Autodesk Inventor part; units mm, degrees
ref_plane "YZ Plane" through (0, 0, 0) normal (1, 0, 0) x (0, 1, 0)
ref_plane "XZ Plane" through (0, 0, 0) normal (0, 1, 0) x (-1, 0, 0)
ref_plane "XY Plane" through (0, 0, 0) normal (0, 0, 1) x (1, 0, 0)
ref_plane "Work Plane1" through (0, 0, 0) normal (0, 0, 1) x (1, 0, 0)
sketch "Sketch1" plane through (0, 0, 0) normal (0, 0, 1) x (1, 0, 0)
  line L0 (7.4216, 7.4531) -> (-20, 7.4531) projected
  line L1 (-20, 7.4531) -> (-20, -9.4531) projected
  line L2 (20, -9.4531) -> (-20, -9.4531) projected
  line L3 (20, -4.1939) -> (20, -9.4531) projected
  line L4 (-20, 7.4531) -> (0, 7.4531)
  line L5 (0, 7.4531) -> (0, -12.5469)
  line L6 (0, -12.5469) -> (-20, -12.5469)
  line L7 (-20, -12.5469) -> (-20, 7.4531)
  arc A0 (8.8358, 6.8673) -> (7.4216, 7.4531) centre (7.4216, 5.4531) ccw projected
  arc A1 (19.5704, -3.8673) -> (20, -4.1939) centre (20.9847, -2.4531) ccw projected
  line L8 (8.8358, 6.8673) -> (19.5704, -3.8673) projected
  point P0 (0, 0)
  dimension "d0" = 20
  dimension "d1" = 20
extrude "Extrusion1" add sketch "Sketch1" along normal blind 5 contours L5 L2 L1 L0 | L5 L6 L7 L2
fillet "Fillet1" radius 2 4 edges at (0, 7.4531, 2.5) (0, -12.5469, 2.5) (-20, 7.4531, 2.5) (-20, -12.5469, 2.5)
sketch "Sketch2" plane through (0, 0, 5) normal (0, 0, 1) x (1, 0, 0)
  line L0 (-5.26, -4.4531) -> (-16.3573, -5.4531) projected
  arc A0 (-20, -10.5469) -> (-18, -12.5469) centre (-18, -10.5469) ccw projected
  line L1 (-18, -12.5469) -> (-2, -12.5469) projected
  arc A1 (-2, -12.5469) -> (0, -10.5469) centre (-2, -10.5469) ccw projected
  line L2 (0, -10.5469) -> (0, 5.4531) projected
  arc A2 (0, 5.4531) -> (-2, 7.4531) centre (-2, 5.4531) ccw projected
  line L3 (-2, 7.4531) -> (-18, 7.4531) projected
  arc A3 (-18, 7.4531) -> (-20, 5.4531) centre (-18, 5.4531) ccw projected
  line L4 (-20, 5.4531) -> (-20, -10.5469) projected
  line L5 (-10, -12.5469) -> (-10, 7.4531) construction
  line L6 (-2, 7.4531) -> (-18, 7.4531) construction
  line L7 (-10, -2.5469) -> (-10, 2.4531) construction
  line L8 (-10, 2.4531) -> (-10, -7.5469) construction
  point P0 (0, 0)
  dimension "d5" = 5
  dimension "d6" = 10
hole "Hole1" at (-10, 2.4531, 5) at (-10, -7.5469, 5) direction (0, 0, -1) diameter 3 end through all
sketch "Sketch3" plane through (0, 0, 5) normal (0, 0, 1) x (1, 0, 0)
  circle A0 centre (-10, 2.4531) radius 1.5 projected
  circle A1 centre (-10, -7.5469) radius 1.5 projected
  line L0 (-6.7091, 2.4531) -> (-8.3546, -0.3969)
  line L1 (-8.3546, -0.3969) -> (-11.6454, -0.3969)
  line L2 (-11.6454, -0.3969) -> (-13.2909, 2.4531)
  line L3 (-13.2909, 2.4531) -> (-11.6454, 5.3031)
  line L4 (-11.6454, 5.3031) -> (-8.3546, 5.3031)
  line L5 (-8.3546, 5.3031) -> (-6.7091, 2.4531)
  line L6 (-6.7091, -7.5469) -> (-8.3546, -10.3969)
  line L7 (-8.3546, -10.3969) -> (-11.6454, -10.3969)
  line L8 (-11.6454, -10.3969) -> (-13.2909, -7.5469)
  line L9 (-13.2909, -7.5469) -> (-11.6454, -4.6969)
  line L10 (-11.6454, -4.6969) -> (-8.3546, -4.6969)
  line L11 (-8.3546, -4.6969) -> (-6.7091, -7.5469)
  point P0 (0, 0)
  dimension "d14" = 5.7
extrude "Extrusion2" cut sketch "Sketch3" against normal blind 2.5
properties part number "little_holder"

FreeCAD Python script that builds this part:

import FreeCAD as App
import Part
import Sketcher

V = App.Vector
Q = App.Units.Quantity


def edges_at(feature, points):
    """Names of the edges that pass closest to the given points."""
    edges = feature.Shape.Edges
    near = lambda p: min(range(len(edges)), key=lambda i: edges[i].distToShape(Part.Vertex(*p))[0])
    return sorted({f"Edge{near(p) + 1}" for p in points})

doc = App.newDocument("Part")
body = doc.addObject("PartDesign::Body", "Body")

sketch1 = body.newObject("Sketcher::SketchObject", "Sketch")
sketch1.AttachmentSupport = (doc.getObject("XY_Plane"), [""])
sketch1.MapMode = "FlatFace"
sketch1.addGeometry([
    Part.LineSegment(V(0, 7, 0), V(-20, 7, 0)),
    Part.LineSegment(V(-20, 7, 0), V(-20, -13, 0)),
    Part.LineSegment(V(-20, -13, 0), V(0, -13, 0)),
    Part.LineSegment(V(0, -13, 0), V(0, 7, 0)),
], False)
sketch1.addConstraint([
    Sketcher.Constraint("Coincident", 0, 2, 1, 1),
    Sketcher.Constraint("Coincident", 1, 2, 2, 1),
    Sketcher.Constraint("Coincident", 2, 2, 3, 1),
    Sketcher.Constraint("Coincident", 3, 2, 0, 1),
    Sketcher.Constraint("Horizontal", 0),
    Sketcher.Constraint("Vertical", 1),
    Sketcher.Constraint("Horizontal", 2),
    Sketcher.Constraint("Vertical", 3),
    Sketcher.Constraint("PointOnObject", 2, 2, -2),
    Sketcher.Constraint("Equal", 2, 1),
    Sketcher.Constraint("DistanceX", 0, 2, 0, 1, 20.0),
    Sketcher.Constraint("DistanceY", -1, 1, 0, 2, 7.453),
])
pad1 = body.newObject("PartDesign::Pad", "Pad")
pad1.Profile = sketch1
pad1.Length = 5
doc.recompute()

fillet = body.newObject("PartDesign::Fillet", "Fillet")
fillet.Base = (pad1, edges_at(pad1, [
    (0, 7.453, 2.5),
    (0, -12.547, 2.5),
    (-20, 7.453, 2.5),
    (-20, -12.547, 2.5),
]))
fillet.Radius = 2

sketch2 = body.newObject("Sketcher::SketchObject", "Sketch001")
sketch2.AttachmentSupport = (doc.getObject("XY_Plane"), [""])
sketch2.MapMode = "FlatFace"
sketch2.AttachmentOffset = App.Placement(V(0, 0, 5), App.Rotation())
sketch2.addGeometry([
    Part.Circle(V(-10, 2.5, 0), V(0, 0, 1), 1.5),
    Part.Circle(V(-10, -7.5, 0), V(0, 0, 1), 1.5),
], False)
sketch2.addConstraint([
    Sketcher.Constraint("Equal", 0, 1),
    Sketcher.Constraint("Vertical", 0, 3, 1, 3),
    Sketcher.Constraint("Diameter", 0, 3.0),
    Sketcher.Constraint("DistanceX", 0, 3, -1, 1, 10.0),
    Sketcher.Constraint("DistanceY", 1, 3, 0, 3, 10.0),
    Sketcher.Constraint("DistanceY", -1, 1, 0, 3, 2.453),
])
doc.recompute()
hole = body.newObject("PartDesign::Hole", "Hole")
hole.Profile = sketch2
hole.ThreadType = "None"
hole.Diameter = 3
hole.DepthType = "ThroughAll"

sketch3 = body.newObject("Sketcher::SketchObject", "Sketch002")
sketch3.AttachmentSupport = (doc.getObject("XY_Plane"), [""])
sketch3.MapMode = "FlatFace"
sketch3.AttachmentOffset = App.Placement(V(0, 0, 5), App.Rotation())
sketch3.addGeometry([
    Part.LineSegment(V(-8.4, -0.4, 0), V(-6.7, 2.5, 0)),
    Part.LineSegment(V(-6.7, 2.5, 0), V(-8.4, 5.3, 0)),
    Part.LineSegment(V(-8.4, 5.3, 0), V(-11.6, 5.3, 0)),
    Part.LineSegment(V(-11.6, 5.3, 0), V(-13.3, 2.5, 0)),
    Part.LineSegment(V(-13.3, 2.5, 0), V(-11.6, -0.4, 0)),
    Part.LineSegment(V(-11.6, -0.4, 0), V(-8.4, -0.4, 0)),
    Part.Circle(V(-10, 2.5, 0), V(0, 0, 1), 1.5),
    Part.LineSegment(V(-8.4, -10.4, 0), V(-6.7, -7.5, 0)),
    Part.LineSegment(V(-6.7, -7.5, 0), V(-8.4, -4.7, 0)),
    Part.LineSegment(V(-8.4, -4.7, 0), V(-11.6, -4.7, 0)),
    Part.LineSegment(V(-11.6, -4.7, 0), V(-13.3, -7.5, 0)),
    Part.LineSegment(V(-13.3, -7.5, 0), V(-11.6, -10.4, 0)),
    Part.LineSegment(V(-11.6, -10.4, 0), V(-8.4, -10.4, 0)),
    Part.Circle(V(-10, -7.5, 0), V(0, 0, 1), 1.5),
], False)
sketch3.addConstraint([
    Sketcher.Constraint("Coincident", 0, 2, 1, 1),
    Sketcher.Constraint("Coincident", 1, 2, 2, 1),
    Sketcher.Constraint("Coincident", 2, 2, 3, 1),
    Sketcher.Constraint("Coincident", 3, 2, 4, 1),
    Sketcher.Constraint("Coincident", 4, 2, 5, 1),
    Sketcher.Constraint("Coincident", 5, 2, 0, 1),
    Sketcher.Constraint("Coincident", 7, 2, 8, 1),
    Sketcher.Constraint("Coincident", 8, 2, 9, 1),
    Sketcher.Constraint("Coincident", 9, 2, 10, 1),
    Sketcher.Constraint("Coincident", 10, 2, 11, 1),
    Sketcher.Constraint("Coincident", 11, 2, 12, 1),
    Sketcher.Constraint("Coincident", 12, 2, 7, 1),
    Sketcher.Constraint("Horizontal", 2),
    Sketcher.Constraint("Horizontal", 5),
    Sketcher.Constraint("Horizontal", 9),
    Sketcher.Constraint("Horizontal", 12),
    Sketcher.Constraint("Equal", 6, 13),
    Sketcher.Constraint("Parallel", 0, 3),
    Sketcher.Constraint("Parallel", 1, 4),
    Sketcher.Constraint("Parallel", 3, 7),
    Sketcher.Constraint("Parallel", 4, 8),
    Sketcher.Constraint("Parallel", 7, 10),
    Sketcher.Constraint("Parallel", 8, 11),
    Sketcher.Constraint("Horizontal", 6, 3, 0, 2),
    Sketcher.Constraint("Horizontal", 0, 2, 3, 2),
    Sketcher.Constraint("Horizontal", 13, 3, 7, 2),
    Sketcher.Constraint("Horizontal", 7, 2, 10, 2),
    Sketcher.Constraint("Vertical", 6, 3, 13, 3),
    Sketcher.Constraint("Vertical", 2, 2, 4, 2),
    Sketcher.Constraint("Vertical", 1, 2, 5, 2),
    Sketcher.Constraint("Vertical", 0, 2, 7, 2),
    Sketcher.Constraint("Vertical", 5, 2, 8, 2),
    Sketcher.Constraint("Vertical", 4, 2, 9, 2),
    Sketcher.Constraint("Vertical", 9, 2, 11, 2),
    Sketcher.Constraint("Diameter", 6, 3.0),
    Sketcher.Constraint("DistanceY", 4, 2, 2, 2, 5.7),
    Sketcher.Constraint("Angle", 0, Q("59.9992 deg")),
    Sketcher.Constraint("DistanceX", 6, 3, -1, 1, 10.0),
    Sketcher.Constraint("DistanceY", 13, 3, 6, 3, 10.0),
    Sketcher.Constraint("DistanceX", 2, 2, 2, 1, 3.2908),
    Sketcher.Constraint("DistanceY", -1, 1, 6, 3, 2.453),
    Sketcher.Constraint("DistanceX", 0, 2, -1, 1, 6.709),
])
pocket1 = body.newObject("PartDesign::Pocket", "Pocket")
pocket1.Profile = sketch3
pocket1.Length = 2.5

doc.recompute()
